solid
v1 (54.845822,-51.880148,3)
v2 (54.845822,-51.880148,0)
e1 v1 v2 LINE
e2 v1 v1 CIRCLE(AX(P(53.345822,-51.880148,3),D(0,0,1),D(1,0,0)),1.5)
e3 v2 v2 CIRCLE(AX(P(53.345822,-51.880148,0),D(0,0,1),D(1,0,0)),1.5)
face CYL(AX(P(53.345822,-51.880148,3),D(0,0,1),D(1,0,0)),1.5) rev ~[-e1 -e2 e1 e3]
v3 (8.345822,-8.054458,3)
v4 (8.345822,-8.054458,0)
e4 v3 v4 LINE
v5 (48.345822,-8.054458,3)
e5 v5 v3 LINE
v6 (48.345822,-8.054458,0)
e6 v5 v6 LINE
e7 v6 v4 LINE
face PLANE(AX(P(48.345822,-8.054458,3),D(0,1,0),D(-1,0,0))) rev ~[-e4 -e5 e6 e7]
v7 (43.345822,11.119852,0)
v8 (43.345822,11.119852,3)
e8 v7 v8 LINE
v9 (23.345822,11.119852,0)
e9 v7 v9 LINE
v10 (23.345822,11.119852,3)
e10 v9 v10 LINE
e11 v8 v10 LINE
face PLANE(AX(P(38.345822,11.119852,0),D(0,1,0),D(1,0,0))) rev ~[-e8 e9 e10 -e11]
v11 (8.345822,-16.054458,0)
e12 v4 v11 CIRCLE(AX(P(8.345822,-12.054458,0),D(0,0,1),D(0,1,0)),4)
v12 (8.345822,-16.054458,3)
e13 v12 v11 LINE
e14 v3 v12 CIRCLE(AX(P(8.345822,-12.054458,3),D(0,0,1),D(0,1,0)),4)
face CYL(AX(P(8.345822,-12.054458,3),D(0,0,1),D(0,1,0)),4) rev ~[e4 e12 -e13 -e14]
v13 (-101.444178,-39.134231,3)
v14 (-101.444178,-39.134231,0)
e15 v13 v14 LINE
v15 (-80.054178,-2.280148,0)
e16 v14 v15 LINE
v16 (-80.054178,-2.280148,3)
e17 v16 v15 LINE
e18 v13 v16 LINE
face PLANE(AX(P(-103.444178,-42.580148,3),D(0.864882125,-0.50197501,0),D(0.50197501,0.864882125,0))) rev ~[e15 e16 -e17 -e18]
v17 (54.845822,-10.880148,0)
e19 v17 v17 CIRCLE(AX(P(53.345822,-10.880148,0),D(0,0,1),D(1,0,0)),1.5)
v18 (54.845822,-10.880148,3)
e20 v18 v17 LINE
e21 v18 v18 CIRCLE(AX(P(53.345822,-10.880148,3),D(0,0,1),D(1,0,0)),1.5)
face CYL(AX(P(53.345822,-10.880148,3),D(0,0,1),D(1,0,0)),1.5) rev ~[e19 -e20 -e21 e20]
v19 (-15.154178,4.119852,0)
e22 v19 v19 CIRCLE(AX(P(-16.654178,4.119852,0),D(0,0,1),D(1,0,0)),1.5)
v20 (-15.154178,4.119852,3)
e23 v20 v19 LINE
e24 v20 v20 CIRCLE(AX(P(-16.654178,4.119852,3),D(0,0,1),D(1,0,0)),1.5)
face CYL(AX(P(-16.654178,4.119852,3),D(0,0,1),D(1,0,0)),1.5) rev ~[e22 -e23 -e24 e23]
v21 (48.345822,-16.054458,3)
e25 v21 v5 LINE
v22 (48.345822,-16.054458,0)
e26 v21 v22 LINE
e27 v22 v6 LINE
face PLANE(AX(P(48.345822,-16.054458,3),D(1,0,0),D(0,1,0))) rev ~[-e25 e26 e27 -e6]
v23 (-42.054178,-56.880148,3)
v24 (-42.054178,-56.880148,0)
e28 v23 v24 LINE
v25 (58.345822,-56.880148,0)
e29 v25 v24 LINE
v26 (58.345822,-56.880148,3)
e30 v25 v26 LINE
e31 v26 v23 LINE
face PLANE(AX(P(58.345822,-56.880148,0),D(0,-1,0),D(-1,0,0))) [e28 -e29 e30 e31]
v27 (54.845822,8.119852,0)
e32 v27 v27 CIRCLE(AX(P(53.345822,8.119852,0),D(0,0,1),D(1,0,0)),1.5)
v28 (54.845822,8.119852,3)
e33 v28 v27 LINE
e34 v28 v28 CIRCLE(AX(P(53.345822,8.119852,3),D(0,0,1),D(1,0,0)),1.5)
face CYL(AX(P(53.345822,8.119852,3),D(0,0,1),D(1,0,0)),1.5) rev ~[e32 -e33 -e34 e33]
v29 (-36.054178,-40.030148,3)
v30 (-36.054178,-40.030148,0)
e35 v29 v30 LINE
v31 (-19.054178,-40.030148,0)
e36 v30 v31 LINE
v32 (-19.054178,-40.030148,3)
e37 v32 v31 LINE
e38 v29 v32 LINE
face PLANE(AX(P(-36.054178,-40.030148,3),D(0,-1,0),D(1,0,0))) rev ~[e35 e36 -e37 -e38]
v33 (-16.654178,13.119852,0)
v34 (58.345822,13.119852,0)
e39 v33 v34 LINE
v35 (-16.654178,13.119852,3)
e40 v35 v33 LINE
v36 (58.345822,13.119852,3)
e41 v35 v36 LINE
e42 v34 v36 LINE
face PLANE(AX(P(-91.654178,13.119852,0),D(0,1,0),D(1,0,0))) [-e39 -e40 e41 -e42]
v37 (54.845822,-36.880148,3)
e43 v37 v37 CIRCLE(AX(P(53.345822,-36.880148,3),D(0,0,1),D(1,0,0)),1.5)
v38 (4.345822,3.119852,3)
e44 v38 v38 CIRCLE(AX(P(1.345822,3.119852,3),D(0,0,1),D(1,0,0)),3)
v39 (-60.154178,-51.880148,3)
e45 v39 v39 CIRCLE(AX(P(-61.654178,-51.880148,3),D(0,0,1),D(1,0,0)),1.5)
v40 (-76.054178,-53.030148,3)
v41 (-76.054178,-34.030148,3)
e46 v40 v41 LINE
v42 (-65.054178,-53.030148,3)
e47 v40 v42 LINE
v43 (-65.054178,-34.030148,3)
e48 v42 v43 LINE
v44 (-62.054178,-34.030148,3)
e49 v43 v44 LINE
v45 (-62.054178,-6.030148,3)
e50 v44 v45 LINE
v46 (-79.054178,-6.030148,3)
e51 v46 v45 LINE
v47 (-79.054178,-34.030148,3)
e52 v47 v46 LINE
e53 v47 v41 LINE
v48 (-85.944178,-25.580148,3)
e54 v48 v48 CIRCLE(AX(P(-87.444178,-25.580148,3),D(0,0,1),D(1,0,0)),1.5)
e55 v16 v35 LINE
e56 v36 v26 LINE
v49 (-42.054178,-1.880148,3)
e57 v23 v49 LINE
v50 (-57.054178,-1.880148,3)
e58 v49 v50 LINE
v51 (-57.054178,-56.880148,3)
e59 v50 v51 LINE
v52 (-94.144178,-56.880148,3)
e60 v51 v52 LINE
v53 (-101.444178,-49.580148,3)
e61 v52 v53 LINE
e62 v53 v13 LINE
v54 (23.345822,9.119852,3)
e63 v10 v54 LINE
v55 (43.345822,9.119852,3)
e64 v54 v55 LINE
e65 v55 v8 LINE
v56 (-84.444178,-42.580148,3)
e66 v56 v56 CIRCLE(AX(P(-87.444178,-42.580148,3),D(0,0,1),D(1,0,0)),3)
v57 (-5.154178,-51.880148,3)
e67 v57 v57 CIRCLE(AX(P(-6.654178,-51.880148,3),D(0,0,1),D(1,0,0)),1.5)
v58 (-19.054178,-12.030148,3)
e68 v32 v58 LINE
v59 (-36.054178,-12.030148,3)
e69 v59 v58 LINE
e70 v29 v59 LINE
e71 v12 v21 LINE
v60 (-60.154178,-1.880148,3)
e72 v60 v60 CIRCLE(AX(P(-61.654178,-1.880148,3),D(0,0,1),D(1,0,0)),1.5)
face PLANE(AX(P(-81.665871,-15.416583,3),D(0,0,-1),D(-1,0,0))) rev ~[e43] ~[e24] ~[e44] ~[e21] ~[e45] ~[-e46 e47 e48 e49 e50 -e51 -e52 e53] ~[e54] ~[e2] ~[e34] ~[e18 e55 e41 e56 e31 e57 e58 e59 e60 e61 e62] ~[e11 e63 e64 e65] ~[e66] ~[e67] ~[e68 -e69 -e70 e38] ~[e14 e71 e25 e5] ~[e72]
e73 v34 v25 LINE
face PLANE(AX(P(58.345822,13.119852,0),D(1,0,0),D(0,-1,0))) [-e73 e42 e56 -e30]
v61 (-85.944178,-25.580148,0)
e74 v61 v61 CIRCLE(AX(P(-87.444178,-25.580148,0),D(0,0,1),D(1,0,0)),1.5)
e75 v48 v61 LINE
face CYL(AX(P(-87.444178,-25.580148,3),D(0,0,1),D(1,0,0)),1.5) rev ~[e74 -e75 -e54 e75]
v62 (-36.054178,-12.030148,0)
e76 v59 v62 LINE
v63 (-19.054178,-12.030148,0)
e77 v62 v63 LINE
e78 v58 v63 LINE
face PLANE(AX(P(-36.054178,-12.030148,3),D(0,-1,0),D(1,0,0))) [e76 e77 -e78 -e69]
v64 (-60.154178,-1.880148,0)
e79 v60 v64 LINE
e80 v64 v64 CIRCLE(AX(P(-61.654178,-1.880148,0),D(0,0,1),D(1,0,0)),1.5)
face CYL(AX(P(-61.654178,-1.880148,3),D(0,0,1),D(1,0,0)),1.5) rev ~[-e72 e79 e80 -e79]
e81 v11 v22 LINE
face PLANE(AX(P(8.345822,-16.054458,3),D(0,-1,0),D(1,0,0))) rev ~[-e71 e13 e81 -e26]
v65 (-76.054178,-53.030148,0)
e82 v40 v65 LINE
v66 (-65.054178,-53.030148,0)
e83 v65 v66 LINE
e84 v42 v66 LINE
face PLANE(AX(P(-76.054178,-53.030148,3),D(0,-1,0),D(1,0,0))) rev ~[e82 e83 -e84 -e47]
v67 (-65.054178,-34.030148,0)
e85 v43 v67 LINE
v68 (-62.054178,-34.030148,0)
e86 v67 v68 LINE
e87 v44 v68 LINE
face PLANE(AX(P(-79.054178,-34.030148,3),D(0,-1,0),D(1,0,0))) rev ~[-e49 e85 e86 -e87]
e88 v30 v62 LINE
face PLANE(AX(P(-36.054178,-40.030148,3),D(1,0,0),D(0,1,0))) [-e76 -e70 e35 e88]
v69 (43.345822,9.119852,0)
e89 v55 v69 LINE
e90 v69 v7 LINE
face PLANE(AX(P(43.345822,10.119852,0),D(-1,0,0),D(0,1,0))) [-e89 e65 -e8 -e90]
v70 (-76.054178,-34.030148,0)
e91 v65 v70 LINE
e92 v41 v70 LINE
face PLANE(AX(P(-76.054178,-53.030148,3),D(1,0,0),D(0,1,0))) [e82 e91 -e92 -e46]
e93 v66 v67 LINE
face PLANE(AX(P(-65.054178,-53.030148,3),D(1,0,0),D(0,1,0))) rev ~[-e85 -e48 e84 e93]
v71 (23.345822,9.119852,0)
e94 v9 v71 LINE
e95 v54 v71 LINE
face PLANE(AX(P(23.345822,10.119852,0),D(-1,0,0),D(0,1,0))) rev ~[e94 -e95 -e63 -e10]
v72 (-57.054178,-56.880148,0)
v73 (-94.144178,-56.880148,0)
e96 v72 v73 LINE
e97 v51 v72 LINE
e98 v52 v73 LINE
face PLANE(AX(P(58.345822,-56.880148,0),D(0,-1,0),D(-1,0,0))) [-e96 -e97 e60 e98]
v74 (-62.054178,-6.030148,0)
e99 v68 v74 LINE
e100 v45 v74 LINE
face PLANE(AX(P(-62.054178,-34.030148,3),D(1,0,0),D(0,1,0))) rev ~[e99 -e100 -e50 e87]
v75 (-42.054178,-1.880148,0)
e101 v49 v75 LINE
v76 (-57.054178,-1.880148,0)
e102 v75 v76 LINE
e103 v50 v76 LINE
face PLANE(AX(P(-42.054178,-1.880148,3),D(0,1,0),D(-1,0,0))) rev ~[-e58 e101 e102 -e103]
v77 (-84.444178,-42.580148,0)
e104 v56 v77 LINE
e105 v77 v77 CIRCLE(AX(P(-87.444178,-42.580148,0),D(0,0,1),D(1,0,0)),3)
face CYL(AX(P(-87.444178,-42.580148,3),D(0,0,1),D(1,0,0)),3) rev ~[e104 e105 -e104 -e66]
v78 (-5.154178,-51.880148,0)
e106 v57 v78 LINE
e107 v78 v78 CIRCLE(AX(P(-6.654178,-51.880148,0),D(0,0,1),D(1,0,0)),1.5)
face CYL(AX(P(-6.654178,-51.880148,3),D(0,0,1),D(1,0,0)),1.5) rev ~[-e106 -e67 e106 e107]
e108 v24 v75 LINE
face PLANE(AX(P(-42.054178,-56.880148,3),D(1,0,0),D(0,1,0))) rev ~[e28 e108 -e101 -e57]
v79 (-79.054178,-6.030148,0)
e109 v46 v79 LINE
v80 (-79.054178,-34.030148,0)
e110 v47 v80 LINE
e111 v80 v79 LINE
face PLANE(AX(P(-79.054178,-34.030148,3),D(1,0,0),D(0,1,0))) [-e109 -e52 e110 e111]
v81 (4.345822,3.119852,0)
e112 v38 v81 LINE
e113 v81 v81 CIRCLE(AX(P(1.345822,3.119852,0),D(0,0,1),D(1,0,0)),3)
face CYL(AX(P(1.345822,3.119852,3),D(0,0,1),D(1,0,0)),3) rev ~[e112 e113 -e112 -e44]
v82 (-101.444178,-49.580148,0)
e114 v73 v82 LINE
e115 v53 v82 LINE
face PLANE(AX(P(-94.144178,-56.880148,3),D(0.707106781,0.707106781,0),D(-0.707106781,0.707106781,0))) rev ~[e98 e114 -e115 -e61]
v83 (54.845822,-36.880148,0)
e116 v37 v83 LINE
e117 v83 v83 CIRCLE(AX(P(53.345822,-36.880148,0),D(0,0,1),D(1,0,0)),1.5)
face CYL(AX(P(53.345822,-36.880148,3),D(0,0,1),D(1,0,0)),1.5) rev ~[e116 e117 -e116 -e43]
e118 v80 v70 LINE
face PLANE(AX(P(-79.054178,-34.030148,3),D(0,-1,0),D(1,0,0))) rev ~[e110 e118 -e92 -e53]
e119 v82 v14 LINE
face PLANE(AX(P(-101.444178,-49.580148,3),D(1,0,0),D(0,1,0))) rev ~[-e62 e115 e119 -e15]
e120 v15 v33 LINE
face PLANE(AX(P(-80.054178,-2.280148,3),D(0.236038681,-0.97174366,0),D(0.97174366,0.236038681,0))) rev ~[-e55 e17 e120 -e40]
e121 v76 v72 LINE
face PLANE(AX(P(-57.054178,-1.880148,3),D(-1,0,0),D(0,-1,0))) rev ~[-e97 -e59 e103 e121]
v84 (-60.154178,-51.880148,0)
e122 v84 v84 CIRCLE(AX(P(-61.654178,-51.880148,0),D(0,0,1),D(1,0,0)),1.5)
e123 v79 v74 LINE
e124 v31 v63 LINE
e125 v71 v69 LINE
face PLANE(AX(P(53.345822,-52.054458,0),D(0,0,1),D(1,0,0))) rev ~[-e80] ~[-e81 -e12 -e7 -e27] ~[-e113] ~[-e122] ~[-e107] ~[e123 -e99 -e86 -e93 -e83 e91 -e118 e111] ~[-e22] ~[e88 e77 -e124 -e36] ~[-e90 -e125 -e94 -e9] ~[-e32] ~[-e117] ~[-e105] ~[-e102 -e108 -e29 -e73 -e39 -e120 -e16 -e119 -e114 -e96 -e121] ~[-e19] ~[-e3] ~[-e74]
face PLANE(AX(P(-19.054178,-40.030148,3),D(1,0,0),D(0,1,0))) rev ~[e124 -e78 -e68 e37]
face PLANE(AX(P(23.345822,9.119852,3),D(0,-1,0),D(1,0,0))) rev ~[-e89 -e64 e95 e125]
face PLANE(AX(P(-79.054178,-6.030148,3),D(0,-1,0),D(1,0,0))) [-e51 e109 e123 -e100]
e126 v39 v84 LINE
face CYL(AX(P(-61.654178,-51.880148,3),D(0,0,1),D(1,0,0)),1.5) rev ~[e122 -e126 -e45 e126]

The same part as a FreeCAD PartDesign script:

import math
import FreeCAD as App
import Part
import Sketcher

V = App.Vector
Q = App.Units.Quantity

doc = App.newDocument("Part")
body = doc.addObject("PartDesign::Body", "Body")

sketch1 = body.newObject("Sketcher::SketchObject", "Sketch")
sketch1.AttachmentSupport = (doc.getObject("XY_Plane"), [""])
sketch1.MapMode = "FlatFace"
sketch1.addGeometry([
    Part.LineSegment(V(58.3, -56.9, 0), V(58.3, 13.1, 0)),
    Part.LineSegment(V(58.3, 13.1, 0), V(-91.7, 13.1, 0)),
    Part.LineSegment(V(-91.7, 13.1, 0), V(-121.7, 33.1, 0)),
    Part.LineSegment(V(-121.7, 33.1, 0), V(-221.7, 33.1, 0)),
    Part.LineSegment(V(-221.7, 33.1, 0), V(-221.7, -6.9, 0)),
    Part.LineSegment(V(-221.7, -6.9, 0), V(-191.7, -26.9, 0)),
    Part.LineSegment(V(-191.7, -26.9, 0), V(-191.7, -56.9, 0)),
    Part.LineSegment(V(-191.7, -56.9, 0), V(58.3, -56.9, 0)),
    Part.Circle(V(53.3, -52.1, 0), V(0, 0, 1), 1.2),
    Part.Circle(V(25.5, -18.3, 0), V(0, 0, 1), 0.8),
    Part.Circle(V(53.3, 7.9, 0), V(0, 0, 1), 1.2),
    Part.LineSegment(V(38.3, 10.1, 0), V(38.3, 11.1, 0)),
    Part.LineSegment(V(38.3, 11.1, 0), V(43.3, 11.1, 0)),
    Part.LineSegment(V(43.3, 11.1, 0), V(43.3, 10.1, 0)),
    Part.LineSegment(V(43.3, 10.1, 0), V(38.3, 10.1, 0)),
    Part.LineSegment(V(23.3, 10.1, 0), V(23.3, 11.1, 0)),
    Part.LineSegment(V(23.3, 11.1, 0), V(28.3, 11.1, 0)),
    Part.LineSegment(V(28.3, 11.1, 0), V(28.3, 10.1, 0)),
    Part.LineSegment(V(28.3, 10.1, 0), V(23.3, 10.1, 0)),
    Part.LineSegment(V(-211.7, 3.1, 0), V(-211.7, 23.1, 0)),
    Part.LineSegment(V(-211.7, 23.1, 0), V(-151.7, 23.1, 0)),
    Part.LineSegment(V(-151.7, 23.1, 0), V(-151.7, 3.1, 0)),
    Part.LineSegment(V(-151.7, 3.1, 0), V(-211.7, 3.1, 0)),
], False)
sketch1.addConstraint([
    Sketcher.Constraint("Coincident", 0, 2, 1, 1),
    Sketcher.Constraint("Coincident", 1, 2, 2, 1),
    Sketcher.Constraint("Coincident", 2, 2, 3, 1),
    Sketcher.Constraint("Coincident", 3, 2, 4, 1),
    Sketcher.Constraint("Coincident", 4, 2, 5, 1),
    Sketcher.Constraint("Coincident", 5, 2, 6, 1),
    Sketcher.Constraint("Coincident", 6, 2, 7, 1),
    Sketcher.Constraint("Coincident", 7, 2, 0, 1),
    Sketcher.Constraint("Coincident", 11, 2, 12, 1),
    Sketcher.Constraint("Coincident", 12, 2, 13, 1),
    Sketcher.Constraint("Coincident", 13, 2, 14, 1),
    Sketcher.Constraint("Coincident", 14, 2, 11, 1),
    Sketcher.Constraint("Coincident", 15, 2, 16, 1),
    Sketcher.Constraint("Coincident", 16, 2, 17, 1),
    Sketcher.Constraint("Coincident", 17, 2, 18, 1),
    Sketcher.Constraint("Coincident", 18, 2, 15, 1),
    Sketcher.Constraint("Coincident", 19, 2, 20, 1),
    Sketcher.Constraint("Coincident", 20, 2, 21, 1),
    Sketcher.Constraint("Coincident", 21, 2, 22, 1),
    Sketcher.Constraint("Coincident", 22, 2, 19, 1),
    Sketcher.Constraint("Vertical", 0),
    Sketcher.Constraint("Horizontal", 1),
    Sketcher.Constraint("Horizontal", 3),
    Sketcher.Constraint("Vertical", 4),
    Sketcher.Constraint("Vertical", 6),
    Sketcher.Constraint("Horizontal", 7),
    Sketcher.Constraint("Vertical", 11),
    Sketcher.Constraint("Horizontal", 12),
    Sketcher.Constraint("Vertical", 13),
    Sketcher.Constraint("Horizontal", 14),
    Sketcher.Constraint("Vertical", 15),
    Sketcher.Constraint("Horizontal", 16),
    Sketcher.Constraint("Vertical", 17),
    Sketcher.Constraint("Horizontal", 18),
    Sketcher.Constraint("Vertical", 19),
    Sketcher.Constraint("Horizontal", 20),
    Sketcher.Constraint("Vertical", 21),
    Sketcher.Constraint("Horizontal", 22),
    Sketcher.Constraint("Equal", 8, 10),
    Sketcher.Constraint("Parallel", 2, 5),
    Sketcher.Constraint("Horizontal", 12, 2, 15, 2),
    Sketcher.Constraint("Horizontal", 14, 2, 17, 2),
    Sketcher.Constraint("Vertical", 8, 3, 10, 3),
    Sketcher.Constraint("Equal", 14, 16),
    Sketcher.Constraint("Equal", 2, 5),
    Sketcher.Constraint("Diameter", 8, 2.5),
    Sketcher.Constraint("Diameter", 9, 1.5),
    Sketcher.Constraint("DistanceX", 1, 2, 1, 1, 150.0),
    Sketcher.Constraint("DistanceX", 3, 2, 3, 1, 100.0),
    Sketcher.Constraint("DistanceX", 12, 1, 12, 2, 5.0),
    Sketcher.Constraint("DistanceX", 20, 1, 20, 2, 60.0),
    Sketcher.Constraint("DistanceY", 0, 1, 0, 2, 70.0),
    Sketcher.Constraint("DistanceY", 4, 2, 4, 1, 40.0),
    Sketcher.Constraint("DistanceY", 11, 1, 11, 2, 1.0),
    Sketcher.Constraint("DistanceY", 19, 1, 19, 2, 20.0),
    Sketcher.Constraint("DistanceY", 8, 3, 10, 3, 60.0),
    Sketcher.Constraint("DistanceX", 10, 3, 0, 2, 5.0),
    Sketcher.Constraint("DistanceX", 2, 2, 1, 2, 30.0),
    Sketcher.Constraint("DistanceY", 1, 2, 2, 2, 20.0),
    Sketcher.Constraint("DistanceX", 11, 2, 10, 3, 15.0),
    Sketcher.Constraint("DistanceY", 11, 2, 0, 2, 2.0),
    Sketcher.Constraint("DistanceX", 15, 2, 11, 2, 15.0),
    Sketcher.Constraint("DistanceX", 3, 2, 19, 2, 10.0),
    Sketcher.Constraint("DistanceY", 19, 2, 3, 2, 10.0),
    Sketcher.Constraint("DistanceX", 9, 3, 8, 3, 27.84),
    Sketcher.Constraint("DistanceY", 9, 3, 0, 2, 31.45),
    Sketcher.Constraint("DistanceX", -1, 1, 8, 3, 53.345822),
    Sketcher.Constraint("DistanceY", 8, 3, -1, 1, 52.054458),
    Sketcher.Constraint("DistanceY", 8, 3, 9, 3, 33.72431),
])
pad1 = body.newObject("PartDesign::Pad", "Pad")
pad1.Profile = sketch1
pad1.Length = 3

sketch2 = body.newObject("Sketcher::SketchObject", "Sketch001")
sketch2.AttachmentSupport = (doc.getObject("XY_Plane"), [""])
sketch2.MapMode = "FlatFace"
sketch2.AttachmentOffset = App.Placement(V(0, 0, 3), App.Rotation())
sketch2.addGeometry(Part.Circle(V(1.3, 3.1, 0), V(0, 0, 1), 1.2), False)
sketch2.addConstraint([
    Sketcher.Constraint("Diameter", 0, 2.5),
    Sketcher.Constraint("DistanceX", -1, 1, 0, 3, 1.345822),
    Sketcher.Constraint("DistanceY", -1, 1, 0, 3, 3.119852),
])
pocket1 = body.newObject("PartDesign::Pocket", "Pocket")
pocket1.Profile = sketch2
pocket1.Length = 3

sketch3 = body.newObject("Sketcher::SketchObject", "Sketch002")
sketch3.AttachmentSupport = (doc.getObject("XY_Plane"), [""])
sketch3.MapMode = "FlatFace"
sketch3.addGeometry(Part.Circle(V(25.5, -18.3, 0), V(0, 0, 1), 0.8), False)
sketch3.addConstraint([
    Sketcher.Constraint("Diameter", 0, 1.5),
    Sketcher.Constraint("DistanceX", -1, 1, 0, 3, 25.505822),
    Sketcher.Constraint("DistanceY", 0, 3, -1, 1, 18.330148),
])
pad2 = body.newObject("PartDesign::Pad", "Pad001")
pad2.Profile = sketch3
pad2.Length = 3

sketch4 = body.newObject("Sketcher::SketchObject", "Sketch003")
sketch4.AttachmentSupport = (doc.getObject("XY_Plane"), [""])
sketch4.MapMode = "FlatFace"
sketch4.AttachmentOffset = App.Placement(V(0, 0, 3), App.Rotation())
sketch4.addGeometry(Part.Circle(V(-93.5, -7.5, 0), V(0, 0, 1), 0.8), False)
sketch4.addConstraint([
    Sketcher.Constraint("Diameter", 0, 1.5),
    Sketcher.Constraint("DistanceX", 0, 3, -1, 1, 93.524702),
    Sketcher.Constraint("DistanceY", 0, 3, -1, 1, 7.521447),
])
pocket2 = body.newObject("PartDesign::Pocket", "Pocket001")
pocket2.Profile = sketch4
pocket2.Length = 10

sketch5 = body.newObject("Sketcher::SketchObject", "Sketch004")
sketch5.AttachmentSupport = (doc.getObject("XY_Plane"), [""])
sketch5.MapMode = "FlatFace"
sketch5.AttachmentOffset = App.Placement(V(0, 0, 3), App.Rotation())
sketch5.addGeometry(Part.Circle(V(-107.4, -9.6, 0), V(0, 0, 1), 0.8), False)
sketch5.addConstraint([
    Sketcher.Constraint("Diameter", 0, 1.5),
    Sketcher.Constraint("DistanceY", 0, 3, -1, 1, 9.638848),
    Sketcher.Constraint("DistanceX", 0, 3, -1, 1, 107.363655),
])
pocket3 = body.newObject("PartDesign::Pocket", "Pocket002")
pocket3.Profile = sketch5
pocket3.Length = 10

sketch6 = body.newObject("Sketcher::SketchObject", "Sketch005")
sketch6.AttachmentSupport = (doc.getObject("XY_Plane"), [""])
sketch6.MapMode = "FlatFace"
sketch6.AttachmentOffset = App.Placement(V(0, 0, 3), App.Rotation())
sketch6.addGeometry([
    Part.LineSegment(V(-103, -48, 0), V(-103, -43, 0)),
    Part.LineSegment(V(-103, -43, 0), V(-80, -2, 0)),
    Part.LineSegment(V(-80, -2, 0), V(-17, 13, 0)),
    Part.LineSegment(V(-17, 13, 0), V(-92, 13, 0)),
    Part.LineSegment(V(-92, 13, 0), V(-122, 33, 0)),
    Part.LineSegment(V(-122, 33, 0), V(-222, 33, 0)),
    Part.LineSegment(V(-222, 33, 0), V(-222, -7, 0)),
    Part.LineSegment(V(-222, -7, 0), V(-192, -27, 0)),
    Part.LineSegment(V(-192, -27, 0), V(-192, -57, 0)),
    Part.LineSegment(V(-192, -57, 0), V(-94, -57, 0)),
    Part.LineSegment(V(-94, -57, 0), V(-103, -48, 0)),
], False)
sketch6.addConstraint([
    Sketcher.Constraint("Coincident", 0, 2, 1, 1),
    Sketcher.Constraint("Coincident", 1, 2, 2, 1),
    Sketcher.Constraint("Coincident", 2, 2, 3, 1),
    Sketcher.Constraint("Coincident", 3, 2, 4, 1),
    Sketcher.Constraint("Coincident", 4, 2, 5, 1),
    Sketcher.Constraint("Coincident", 5, 2, 6, 1),
    Sketcher.Constraint("Coincident", 6, 2, 7, 1),
    Sketcher.Constraint("Coincident", 7, 2, 8, 1),
    Sketcher.Constraint("Coincident", 8, 2, 9, 1),
    Sketcher.Constraint("Coincident", 9, 2, 10, 1),
    Sketcher.Constraint("Coincident", 10, 2, 0, 1),
    Sketcher.Constraint("Vertical", 0),
    Sketcher.Constraint("Horizontal", 3),
    Sketcher.Constraint("Horizontal", 5),
    Sketcher.Constraint("Vertical", 6),
    Sketcher.Constraint("Vertical", 8),
    Sketcher.Constraint("Horizontal", 9),
    Sketcher.Constraint("Parallel", 4, 7),
    Sketcher.Constraint("Equal", 4, 7),
    Sketcher.Constraint("DistanceX", 3, 2, 3, 1, 75.0),
    Sketcher.Constraint("DistanceX", 5, 2, 5, 1, 100.0),
    Sketcher.Constraint("DistanceY", 0, 1, 0, 2, 5.0),
    Sketcher.Constraint("DistanceY", 6, 2, 6, 1, 40.0),
    Sketcher.Constraint("DistanceY", 8, 2, 8, 1, 30.0),
    Sketcher.Constraint("Angle", 10, Q("135 deg")),
    Sketcher.Constraint("DistanceX", 4, 2, 3, 2, 30.0),
    Sketcher.Constraint("DistanceY", 3, 2, 4, 2, 20.0),
    Sketcher.Constraint("DistanceX", 9, 1, 9, 2, 97.51),
    Sketcher.Constraint("DistanceY", 0, 2, 1, 2, 40.3),
    Sketcher.Constraint("DistanceX", 1, 2, 2, 2, 63.4),
    Sketcher.Constraint("DistanceY", 1, 2, 2, 2, 15.4),
    Sketcher.Constraint("DistanceX", 0, 2, -1, 1, 103.444178),
    Sketcher.Constraint("DistanceY", 0, 2, -1, 1, 42.580148),
])
pocket4 = body.newObject("PartDesign::Pocket", "Pocket003")
pocket4.Profile = sketch6
pocket4.Length = 10

sketch7 = body.newObject("Sketcher::SketchObject", "Sketch006")
sketch7.AttachmentSupport = (doc.getObject("XY_Plane"), [""])
sketch7.MapMode = "FlatFace"
sketch7.AttachmentOffset = App.Placement(V(0, 0, 3), App.Rotation())
sketch7.addGeometry([
    Part.LineSegment(V(-36, -12, 0), V(-36, -40, 0)),
    Part.LineSegment(V(-36, -40, 0), V(-19, -40, 0)),
    Part.LineSegment(V(-19, -40, 0), V(-19, -12, 0)),
    Part.LineSegment(V(-19, -12, 0), V(-36, -12, 0)),
    Part.LineSegment(V(-79, -6, 0), V(-79, -34, 0)),
    Part.LineSegment(V(-79, -34, 0), V(-62, -34, 0)),
    Part.LineSegment(V(-62, -34, 0), V(-62, -6, 0)),
    Part.LineSegment(V(-62, -6, 0), V(-79, -6, 0)),
], False)
sketch7.addConstraint([
    Sketcher.Constraint("Coincident", 0, 2, 1, 1),
    Sketcher.Constraint("Coincident", 1, 2, 2, 1),
    Sketcher.Constraint("Coincident", 2, 2, 3, 1),
    Sketcher.Constraint("Coincident", 3, 2, 0, 1),
    Sketcher.Constraint("Coincident", 4, 2, 5, 1),
    Sketcher.Constraint("Coincident", 5, 2, 6, 1),
    Sketcher.Constraint("Coincident", 6, 2, 7, 1),
    Sketcher.Constraint("Coincident", 7, 2, 4, 1),
    Sketcher.Constraint("Vertical", 0),
    Sketcher.Constraint("Horizontal", 1),
    Sketcher.Constraint("Vertical", 2),
    Sketcher.Constraint("Horizontal", 3),
    Sketcher.Constraint("Vertical", 4),
    Sketcher.Constraint("Horizontal", 5),
    Sketcher.Constraint("Vertical", 6),
    Sketcher.Constraint("Horizontal", 7),
    Sketcher.Constraint("Equal", 3, 5),
    Sketcher.Constraint("Equal", 2, 4),
    Sketcher.Constraint("DistanceX", 1, 1, 1, 2, 17.0),
    Sketcher.Constraint("DistanceY", 0, 2, 0, 1, 28.0),
    Sketcher.Constraint("DistanceX", 4, 2, 0, 2, 43.0),
    Sketcher.Constraint("DistanceY", 0, 2, 4, 2, 6.0),
    Sketcher.Constraint("DistanceX", 0, 2, -1, 1, 36.054178),
    Sketcher.Constraint("DistanceY", 0, 2, -1, 1, 40.030148),
])
pocket5 = body.newObject("PartDesign::Pocket", "Pocket004")
pocket5.Profile = sketch7
pocket5.Length = 3

sketch8 = body.newObject("Sketcher::SketchObject", "Sketch007")
sketch8.AttachmentSupport = (doc.getObject("XY_Plane"), [""])
sketch8.MapMode = "FlatFace"
sketch8.AttachmentOffset = App.Placement(V(0, 0, 3), App.Rotation())
sketch8.addGeometry(Part.Circle(V(-87.4, -42.6, 0), V(0, 0, 1), 3), False)
sketch8.addConstraint([
    Sketcher.Constraint("Diameter", 0, 6.0),
    Sketcher.Constraint("DistanceX", 0, 3, -1, 1, 87.444178),
    Sketcher.Constraint("DistanceY", 0, 3, -1, 1, 42.580148),
])
pocket6 = body.newObject("PartDesign::Pocket", "Pocket005")
pocket6.Profile = sketch8
pocket6.Length = 3

sketch9 = body.newObject("Sketcher::SketchObject", "Sketch008")
sketch9.AttachmentSupport = (doc.getObject("XY_Plane"), [""])
sketch9.MapMode = "FlatFace"
sketch9.AttachmentOffset = App.Placement(V(0, 0, 3), App.Rotation())
sketch9.addGeometry([
    Part.LineSegment(V(48.3, -8.1, 0), V(8.3, -8.1, 0)),
    Part.ArcOfCircle(Part.Circle(V(8.3, -12.1, 0), V(0, 0, 1), 4), math.radians(90), math.radians(270)),
    Part.LineSegment(V(8.3, -16.1, 0), V(48.3, -16.1, 0)),
    Part.LineSegment(V(48.3, -16.1, 0), V(48.3, -8.1, 0)),
], False)
sketch9.addConstraint([
    Sketcher.Constraint("Tangent", 0, 2, 1, 1),
    Sketcher.Constraint("Tangent", 1, 2, 2, 1),
    Sketcher.Constraint("Coincident", 2, 2, 3, 1),
    Sketcher.Constraint("Coincident", 3, 2, 0, 1),
    Sketcher.Constraint("Horizontal", 0),
    Sketcher.Constraint("Horizontal", 2),
    Sketcher.Constraint("Vertical", 3),
    Sketcher.Constraint("Radius", 1, 4.0),
    Sketcher.Constraint("DistanceX", 0, 2, 0, 1, 40.0),
    Sketcher.Constraint("DistanceX", -1, 1, 1, 3, 8.345822),
    Sketcher.Constraint("DistanceY", 1, 3, -1, 1, 12.054458),
])
pocket7 = body.newObject("PartDesign::Pocket", "Pocket006")
pocket7.Profile = sketch9
pocket7.Length = 3

sketch10 = body.newObject("Sketcher::SketchObject", "Sketch009")
sketch10.AttachmentSupport = (doc.getObject("XY_Plane"), [""])
sketch10.MapMode = "FlatFace"
sketch10.AttachmentOffset = App.Placement(V(0, 0, 3), App.Rotation())
sketch10.addGeometry(Part.Circle(V(1.3, 3.1, 0), V(0, 0, 1), 3), False)
sketch10.addConstraint([
    Sketcher.Constraint("Diameter", 0, 6.0),
    Sketcher.Constraint("DistanceX", -1, 1, 0, 3, 1.345822),
    Sketcher.Constraint("DistanceY", -1, 1, 0, 3, 3.119852),
])
pocket8 = body.newObject("PartDesign::Pocket", "Pocket007")
pocket8.Profile = sketch10
pocket8.Length = 3

sketch11 = body.newObject("Sketcher::SketchObject", "Sketch010")
sketch11.AttachmentSupport = (doc.getObject("XY_Plane"), [""])
sketch11.MapMode = "FlatFace"
sketch11.AttachmentOffset = App.Placement(V(0, 0, 3), App.Rotation())
sketch11.addGeometry([
    Part.LineSegment(V(28.3, 11.1, 0), V(28.3, 10.1, 0)),
    Part.LineSegment(V(28.3, 10.1, 0), V(38.3, 10.1, 0)),
    Part.LineSegment(V(38.3, 10.1, 0), V(38.3, 11.1, 0)),
    Part.LineSegment(V(38.3, 11.1, 0), V(28.3, 11.1, 0)),
], False)
sketch11.addConstraint([
    Sketcher.Constraint("Coincident", 0, 2, 1, 1),
    Sketcher.Constraint("Coincident", 1, 2, 2, 1),
    Sketcher.Constraint("Coincident", 2, 2, 3, 1),
    Sketcher.Constraint("Coincident", 3, 2, 0, 1),
    Sketcher.Constraint("Vertical", 0),
    Sketcher.Constraint("Horizontal", 1),
    Sketcher.Constraint("Vertical", 2),
    Sketcher.Constraint("Horizontal", 3),
    Sketcher.Constraint("DistanceX", 1, 1, 1, 2, 10.0),
    Sketcher.Constraint("DistanceY", 0, 2, 0, 1, 1.0),
    Sketcher.Constraint("DistanceX", -1, 1, 0, 2, 28.345822),
    Sketcher.Constraint("DistanceY", -1, 1, 0, 2, 10.119852),
])
pocket9 = body.newObject("PartDesign::Pocket", "Pocket008")
pocket9.Profile = sketch11
pocket9.Length = 3

sketch12 = body.newObject("Sketcher::SketchObject", "Sketch011")
sketch12.AttachmentSupport = (doc.getObject("XY_Plane"), [""])
sketch12.MapMode = "FlatFace"
sketch12.AttachmentOffset = App.Placement(V(0, 0, 3), App.Rotation())
sketch12.addGeometry([
    Part.LineSegment(V(-101.4, -39.1, 0), V(-103.4, -42.6, 0)),
    Part.LineSegment(V(-103.4, -42.6, 0), V(-103.4, -47.6, 0)),
    Part.LineSegment(V(-103.4, -47.6, 0), V(-101.4, -49.6, 0)),
    Part.LineSegment(V(-101.4, -49.6, 0), V(-101.4, -39.1, 0)),
], False)
sketch12.addConstraint([
    Sketcher.Constraint("Coincident", 0, 2, 1, 1),
    Sketcher.Constraint("Coincident", 1, 2, 2, 1),
    Sketcher.Constraint("Coincident", 2, 2, 3, 1),
    Sketcher.Constraint("Coincident", 3, 2, 0, 1),
    Sketcher.Constraint("Vertical", 1),
    Sketcher.Constraint("Vertical", 3),
    Sketcher.Constraint("DistanceY", 1, 2, 1, 1, 5.0),
    Sketcher.Constraint("Angle", 2, Q("-45 deg")),
    Sketcher.Constraint("DistanceX", 1, 2, 2, 2, 2.0),
    Sketcher.Constraint("DistanceY", 3, 1, 3, 2, 10.445917),
    Sketcher.Constraint("DistanceX", 0, 2, -1, 1, 103.444178),
    Sketcher.Constraint("DistanceY", 3, 2, -1, 1, 39.134231),
])
pocket10 = body.newObject("PartDesign::Pocket", "Pocket009")
pocket10.Profile = sketch12
pocket10.Length = 3

sketch13 = body.newObject("Sketcher::SketchObject", "Sketch012")
sketch13.AttachmentSupport = (doc.getObject("XY_Plane"), [""])
sketch13.MapMode = "FlatFace"
sketch13.AttachmentOffset = App.Placement(V(0, 0, 3), App.Rotation())
sketch13.addGeometry(Part.Circle(V(-61.7, -1.9, 0), V(0, 0, 1), 1.5), False)
sketch13.addConstraint([
    Sketcher.Constraint("Diameter", 0, 3.0),
    Sketcher.Constraint("DistanceX", 0, 3, -1, 1, 61.654178),
    Sketcher.Constraint("DistanceY", 0, 3, -1, 1, 1.880148),
])
pocket11 = body.newObject("PartDesign::Pocket", "Pocket010")
pocket11.Profile = sketch13
pocket11.Length = 3

sketch14 = body.newObject("Sketcher::SketchObject", "Sketch013")
sketch14.AttachmentSupport = (doc.getObject("XY_Plane"), [""])
sketch14.MapMode = "FlatFace"
sketch14.AttachmentOffset = App.Placement(V(0, 0, 3), App.Rotation())
sketch14.addGeometry(Part.Circle(V(-87.4, -25.6, 0), V(0, 0, 1), 1.5), False)
sketch14.addConstraint([
    Sketcher.Constraint("Diameter", 0, 3.0),
    Sketcher.Constraint("DistanceX", 0, 3, -1, 1, 87.444178),
    Sketcher.Constraint("DistanceY", 0, 3, -1, 1, 25.580148),
])
pocket12 = body.newObject("PartDesign::Pocket", "Pocket011")
pocket12.Profile = sketch14
pocket12.Length = 3

sketch15 = body.newObject("Sketcher::SketchObject", "Sketch014")
sketch15.AttachmentSupport = (doc.getObject("XY_Plane"), [""])
sketch15.MapMode = "FlatFace"
sketch15.AttachmentOffset = App.Placement(V(0, 0, 3), App.Rotation())
sketch15.addGeometry([
    Part.LineSegment(V(-57, -57, 0), V(-42, -57, 0)),
    Part.LineSegment(V(-42, -57, 0), V(-42, -2, 0)),
    Part.LineSegment(V(-42, -2, 0), V(-57, -2, 0)),
    Part.LineSegment(V(-57, -2, 0), V(-57, -57, 0)),
], False)
sketch15.addConstraint([
    Sketcher.Constraint("Coincident", 0, 2, 1, 1),
    Sketcher.Constraint("Coincident", 1, 2, 2, 1),
    Sketcher.Constraint("Coincident", 2, 2, 3, 1),
    Sketcher.Constraint("Coincident", 3, 2, 0, 1),
    Sketcher.Constraint("Horizontal", 0),
    Sketcher.Constraint("Vertical", 1),
    Sketcher.Constraint("Horizontal", 2),
    Sketcher.Constraint("Vertical", 3),
    Sketcher.Constraint("DistanceX", 0, 1, 0, 2, 15.0),
    Sketcher.Constraint("DistanceY", 1, 1, 1, 2, 55.0),
    Sketcher.Constraint("DistanceX", 0, 2, -1, 1, 42.054178),
    Sketcher.Constraint("DistanceY", 0, 2, -1, 1, 56.880148),
])
pocket13 = body.newObject("PartDesign::Pocket", "Pocket012")
pocket13.Profile = sketch15
pocket13.Length = 3

sketch16 = body.newObject("Sketcher::SketchObject", "Sketch015")
sketch16.AttachmentSupport = (doc.getObject("XY_Plane"), [""])
sketch16.MapMode = "FlatFace"
sketch16.addGeometry(Part.Circle(V(53.3, 7.9, 0), V(0, 0, 1), 1.2), False)
sketch16.addConstraint([
    Sketcher.Constraint("Diameter", 0, 2.5),
    Sketcher.Constraint("DistanceX", -1, 1, 0, 3, 53.345822),
    Sketcher.Constraint("DistanceY", -1, 1, 0, 3, 7.945542),
])
pad3 = body.newObject("PartDesign::Pad", "Pad002")
pad3.Profile = sketch16
pad3.Length = 3

sketch17 = body.newObject("Sketcher::SketchObject", "Sketch016")
sketch17.AttachmentSupport = (doc.getObject("XY_Plane"), [""])
sketch17.MapMode = "FlatFace"
sketch17.addGeometry(Part.Circle(V(53.3, -52.1, 0), V(0, 0, 1), 1.2), False)
sketch17.addConstraint([
    Sketcher.Constraint("Diameter", 0, 2.5),
    Sketcher.Constraint("DistanceX", -1, 1, 0, 3, 53.345822),
    Sketcher.Constraint("DistanceY", 0, 3, -1, 1, 52.054458),
])
pad4 = body.newObject("PartDesign::Pad", "Pad003")
pad4.Profile = sketch17
pad4.Length = 3

sketch18 = body.newObject("Sketcher::SketchObject", "Sketch017")
sketch18.AttachmentSupport = (doc.getObject("XY_Plane"), [""])
sketch18.MapMode = "FlatFace"
sketch18.AttachmentOffset = App.Placement(V(0, 0, 3), App.Rotation())
sketch18.addGeometry(Part.Circle(V(53.3, -51.9, 0), V(0, 0, 1), 1.5), False)
sketch18.addConstraint([
    Sketcher.Constraint("Diameter", 0, 3.0),
    Sketcher.Constraint("DistanceX", -1, 1, 0, 3, 53.345822),
    Sketcher.Constraint("DistanceY", 0, 3, -1, 1, 51.880148),
])
pocket14 = body.newObject("PartDesign::Pocket", "Pocket013")
pocket14.Profile = sketch18
pocket14.Length = 3

sketch19 = body.newObject("Sketcher::SketchObject", "Sketch018")
sketch19.AttachmentSupport = (doc.getObject("XY_Plane"), [""])
sketch19.MapMode = "FlatFace"
sketch19.AttachmentOffset = App.Placement(V(0, 0, 3), App.Rotation())
sketch19.addGeometry(Part.Circle(V(-6.7, -51.9, 0), V(0, 0, 1), 1.5), False)
sketch19.addConstraint([
    Sketcher.Constraint("Diameter", 0, 3.0),
    Sketcher.Constraint("DistanceX", 0, 3, -1, 1, 6.654178),
    Sketcher.Constraint("DistanceY", 0, 3, -1, 1, 51.880148),
])
pocket15 = body.newObject("PartDesign::Pocket", "Pocket014")
pocket15.Profile = sketch19
pocket15.Length = 3

sketch20 = body.newObject("Sketcher::SketchObject", "Sketch019")
sketch20.AttachmentSupport = (doc.getObject("XY_Plane"), [""])
sketch20.MapMode = "FlatFace"
sketch20.AttachmentOffset = App.Placement(V(0, 0, 3), App.Rotation())
sketch20.addGeometry(Part.Circle(V(-61.7, -51.9, 0), V(0, 0, 1), 1.5), False)
sketch20.addConstraint([
    Sketcher.Constraint("Diameter", 0, 3.0),
    Sketcher.Constraint("DistanceX", 0, 3, -1, 1, 61.654178),
    Sketcher.Constraint("DistanceY", 0, 3, -1, 1, 51.880148),
])
pocket16 = body.newObject("PartDesign::Pocket", "Pocket015")
pocket16.Profile = sketch20
pocket16.Length = 3

sketch21 = body.newObject("Sketcher::SketchObject", "Sketch020")
sketch21.AttachmentSupport = (doc.getObject("XY_Plane"), [""])
sketch21.MapMode = "FlatFace"
sketch21.AttachmentOffset = App.Placement(V(0, 0, 3), App.Rotation())
sketch21.addGeometry([
    Part.Circle(V(53.3, 8.1, 0), V(0, 0, 1), 1.5),
    Part.Circle(V(53.3, -10.9, 0), V(0, 0, 1), 1.5),
    Part.Circle(V(53.3, -36.9, 0), V(0, 0, 1), 1.5),
], False)
sketch21.addConstraint([
    Sketcher.Constraint("Equal", 0, 1),
    Sketcher.Constraint("Equal", 1, 2),
    Sketcher.Constraint("Vertical", 0, 3, 1, 3),
    Sketcher.Constraint("Vertical", 1, 3, 2, 3),
    Sketcher.Constraint("Diameter", 0, 3.0),
    Sketcher.Constraint("DistanceY", 1, 3, 0, 3, 19.0),
    Sketcher.Constraint("DistanceY", 2, 3, 1, 3, 26.0),
    Sketcher.Constraint("DistanceX", -1, 1, 0, 3, 53.345822),
    Sketcher.Constraint("DistanceY", -1, 1, 0, 3, 8.119852),
])
pocket17 = body.newObject("PartDesign::Pocket", "Pocket016")
pocket17.Profile = sketch21
pocket17.Length = 3

sketch22 = body.newObject("Sketcher::SketchObject", "Sketch021")
sketch22.AttachmentSupport = (doc.getObject("XY_Plane"), [""])
sketch22.MapMode = "FlatFace"
sketch22.AttachmentOffset = App.Placement(V(0, 0, 3), App.Rotation())
sketch22.addGeometry(Part.Circle(V(-16.7, 4.1, 0), V(0, 0, 1), 1.5), False)
sketch22.addConstraint([
    Sketcher.Constraint("Diameter", 0, 3.0),
    Sketcher.Constraint("DistanceX", 0, 3, -1, 1, 16.654178),
    Sketcher.Constraint("DistanceY", -1, 1, 0, 3, 4.119852),
])
pocket18 = body.newObject("PartDesign::Pocket", "Pocket017")
pocket18.Profile = sketch22
pocket18.Length = 3

sketch23 = body.newObject("Sketcher::SketchObject", "Sketch022")
sketch23.AttachmentSupport = (doc.getObject("XY_Plane"), [""])
sketch23.MapMode = "FlatFace"
sketch23.AttachmentOffset = App.Placement(V(0, 0, 3), App.Rotation())
sketch23.addGeometry([
    Part.LineSegment(V(23.3, 10.1, 0), V(23.3, 9.1, 0)),
    Part.LineSegment(V(23.3, 9.1, 0), V(43.3, 9.1, 0)),
    Part.LineSegment(V(43.3, 9.1, 0), V(43.3, 10.1, 0)),
    Part.LineSegment(V(43.3, 10.1, 0), V(23.3, 10.1, 0)),
], False)
sketch23.addConstraint([
    Sketcher.Constraint("Coincident", 0, 2, 1, 1),
    Sketcher.Constraint("Coincident", 1, 2, 2, 1),
    Sketcher.Constraint("Coincident", 2, 2, 3, 1),
    Sketcher.Constraint("Coincident", 3, 2, 0, 1),
    Sketcher.Constraint("Vertical", 0),
    Sketcher.Constraint("Horizontal", 1),
    Sketcher.Constraint("Vertical", 2),
    Sketcher.Constraint("Horizontal", 3),
    Sketcher.Constraint("DistanceX", 1, 1, 1, 2, 20.0),
    Sketcher.Constraint("DistanceY", 0, 2, 0, 1, 1.0),
    Sketcher.Constraint("DistanceX", -1, 1, 0, 2, 23.345822),
    Sketcher.Constraint("DistanceY", -1, 1, 0, 2, 9.119852),
])
pocket19 = body.newObject("PartDesign::Pocket", "Pocket018")
pocket19.Profile = sketch23
pocket19.Length = 3

sketch24 = body.newObject("Sketcher::SketchObject", "Sketch023")
sketch24.AttachmentSupport = (doc.getObject("XY_Plane"), [""])
sketch24.MapMode = "FlatFace"
sketch24.AttachmentOffset = App.Placement(V(0, 0, 3), App.Rotation())
sketch24.addGeometry([
    Part.LineSegment(V(-76, -34, 0), V(-76, -53, 0)),
    Part.LineSegment(V(-76, -53, 0), V(-65, -53, 0)),
    Part.LineSegment(V(-65, -53, 0), V(-65, -34, 0)),
    Part.LineSegment(V(-65, -34, 0), V(-76, -34, 0)),
], False)
sketch24.addConstraint([
    Sketcher.Constraint("Coincident", 0, 2, 1, 1),
    Sketcher.Constraint("Coincident", 1, 2, 2, 1),
    Sketcher.Constraint("Coincident", 2, 2, 3, 1),
    Sketcher.Constraint("Coincident", 3, 2, 0, 1),
    Sketcher.Constraint("Vertical", 0),
    Sketcher.Constraint("Horizontal", 1),
    Sketcher.Constraint("Vertical", 2),
    Sketcher.Constraint("Horizontal", 3),
    Sketcher.Constraint("DistanceX", 1, 1, 1, 2, 11.0),
    Sketcher.Constraint("DistanceY", 0, 2, 0, 1, 19.0),
    Sketcher.Constraint("DistanceX", 0, 2, -1, 1, 76.054178),
    Sketcher.Constraint("DistanceY", 0, 2, -1, 1, 53.030148),
])
pocket20 = body.newObject("PartDesign::Pocket", "Pocket019")
pocket20.Profile = sketch24
pocket20.Length = 10

doc.recompute()
